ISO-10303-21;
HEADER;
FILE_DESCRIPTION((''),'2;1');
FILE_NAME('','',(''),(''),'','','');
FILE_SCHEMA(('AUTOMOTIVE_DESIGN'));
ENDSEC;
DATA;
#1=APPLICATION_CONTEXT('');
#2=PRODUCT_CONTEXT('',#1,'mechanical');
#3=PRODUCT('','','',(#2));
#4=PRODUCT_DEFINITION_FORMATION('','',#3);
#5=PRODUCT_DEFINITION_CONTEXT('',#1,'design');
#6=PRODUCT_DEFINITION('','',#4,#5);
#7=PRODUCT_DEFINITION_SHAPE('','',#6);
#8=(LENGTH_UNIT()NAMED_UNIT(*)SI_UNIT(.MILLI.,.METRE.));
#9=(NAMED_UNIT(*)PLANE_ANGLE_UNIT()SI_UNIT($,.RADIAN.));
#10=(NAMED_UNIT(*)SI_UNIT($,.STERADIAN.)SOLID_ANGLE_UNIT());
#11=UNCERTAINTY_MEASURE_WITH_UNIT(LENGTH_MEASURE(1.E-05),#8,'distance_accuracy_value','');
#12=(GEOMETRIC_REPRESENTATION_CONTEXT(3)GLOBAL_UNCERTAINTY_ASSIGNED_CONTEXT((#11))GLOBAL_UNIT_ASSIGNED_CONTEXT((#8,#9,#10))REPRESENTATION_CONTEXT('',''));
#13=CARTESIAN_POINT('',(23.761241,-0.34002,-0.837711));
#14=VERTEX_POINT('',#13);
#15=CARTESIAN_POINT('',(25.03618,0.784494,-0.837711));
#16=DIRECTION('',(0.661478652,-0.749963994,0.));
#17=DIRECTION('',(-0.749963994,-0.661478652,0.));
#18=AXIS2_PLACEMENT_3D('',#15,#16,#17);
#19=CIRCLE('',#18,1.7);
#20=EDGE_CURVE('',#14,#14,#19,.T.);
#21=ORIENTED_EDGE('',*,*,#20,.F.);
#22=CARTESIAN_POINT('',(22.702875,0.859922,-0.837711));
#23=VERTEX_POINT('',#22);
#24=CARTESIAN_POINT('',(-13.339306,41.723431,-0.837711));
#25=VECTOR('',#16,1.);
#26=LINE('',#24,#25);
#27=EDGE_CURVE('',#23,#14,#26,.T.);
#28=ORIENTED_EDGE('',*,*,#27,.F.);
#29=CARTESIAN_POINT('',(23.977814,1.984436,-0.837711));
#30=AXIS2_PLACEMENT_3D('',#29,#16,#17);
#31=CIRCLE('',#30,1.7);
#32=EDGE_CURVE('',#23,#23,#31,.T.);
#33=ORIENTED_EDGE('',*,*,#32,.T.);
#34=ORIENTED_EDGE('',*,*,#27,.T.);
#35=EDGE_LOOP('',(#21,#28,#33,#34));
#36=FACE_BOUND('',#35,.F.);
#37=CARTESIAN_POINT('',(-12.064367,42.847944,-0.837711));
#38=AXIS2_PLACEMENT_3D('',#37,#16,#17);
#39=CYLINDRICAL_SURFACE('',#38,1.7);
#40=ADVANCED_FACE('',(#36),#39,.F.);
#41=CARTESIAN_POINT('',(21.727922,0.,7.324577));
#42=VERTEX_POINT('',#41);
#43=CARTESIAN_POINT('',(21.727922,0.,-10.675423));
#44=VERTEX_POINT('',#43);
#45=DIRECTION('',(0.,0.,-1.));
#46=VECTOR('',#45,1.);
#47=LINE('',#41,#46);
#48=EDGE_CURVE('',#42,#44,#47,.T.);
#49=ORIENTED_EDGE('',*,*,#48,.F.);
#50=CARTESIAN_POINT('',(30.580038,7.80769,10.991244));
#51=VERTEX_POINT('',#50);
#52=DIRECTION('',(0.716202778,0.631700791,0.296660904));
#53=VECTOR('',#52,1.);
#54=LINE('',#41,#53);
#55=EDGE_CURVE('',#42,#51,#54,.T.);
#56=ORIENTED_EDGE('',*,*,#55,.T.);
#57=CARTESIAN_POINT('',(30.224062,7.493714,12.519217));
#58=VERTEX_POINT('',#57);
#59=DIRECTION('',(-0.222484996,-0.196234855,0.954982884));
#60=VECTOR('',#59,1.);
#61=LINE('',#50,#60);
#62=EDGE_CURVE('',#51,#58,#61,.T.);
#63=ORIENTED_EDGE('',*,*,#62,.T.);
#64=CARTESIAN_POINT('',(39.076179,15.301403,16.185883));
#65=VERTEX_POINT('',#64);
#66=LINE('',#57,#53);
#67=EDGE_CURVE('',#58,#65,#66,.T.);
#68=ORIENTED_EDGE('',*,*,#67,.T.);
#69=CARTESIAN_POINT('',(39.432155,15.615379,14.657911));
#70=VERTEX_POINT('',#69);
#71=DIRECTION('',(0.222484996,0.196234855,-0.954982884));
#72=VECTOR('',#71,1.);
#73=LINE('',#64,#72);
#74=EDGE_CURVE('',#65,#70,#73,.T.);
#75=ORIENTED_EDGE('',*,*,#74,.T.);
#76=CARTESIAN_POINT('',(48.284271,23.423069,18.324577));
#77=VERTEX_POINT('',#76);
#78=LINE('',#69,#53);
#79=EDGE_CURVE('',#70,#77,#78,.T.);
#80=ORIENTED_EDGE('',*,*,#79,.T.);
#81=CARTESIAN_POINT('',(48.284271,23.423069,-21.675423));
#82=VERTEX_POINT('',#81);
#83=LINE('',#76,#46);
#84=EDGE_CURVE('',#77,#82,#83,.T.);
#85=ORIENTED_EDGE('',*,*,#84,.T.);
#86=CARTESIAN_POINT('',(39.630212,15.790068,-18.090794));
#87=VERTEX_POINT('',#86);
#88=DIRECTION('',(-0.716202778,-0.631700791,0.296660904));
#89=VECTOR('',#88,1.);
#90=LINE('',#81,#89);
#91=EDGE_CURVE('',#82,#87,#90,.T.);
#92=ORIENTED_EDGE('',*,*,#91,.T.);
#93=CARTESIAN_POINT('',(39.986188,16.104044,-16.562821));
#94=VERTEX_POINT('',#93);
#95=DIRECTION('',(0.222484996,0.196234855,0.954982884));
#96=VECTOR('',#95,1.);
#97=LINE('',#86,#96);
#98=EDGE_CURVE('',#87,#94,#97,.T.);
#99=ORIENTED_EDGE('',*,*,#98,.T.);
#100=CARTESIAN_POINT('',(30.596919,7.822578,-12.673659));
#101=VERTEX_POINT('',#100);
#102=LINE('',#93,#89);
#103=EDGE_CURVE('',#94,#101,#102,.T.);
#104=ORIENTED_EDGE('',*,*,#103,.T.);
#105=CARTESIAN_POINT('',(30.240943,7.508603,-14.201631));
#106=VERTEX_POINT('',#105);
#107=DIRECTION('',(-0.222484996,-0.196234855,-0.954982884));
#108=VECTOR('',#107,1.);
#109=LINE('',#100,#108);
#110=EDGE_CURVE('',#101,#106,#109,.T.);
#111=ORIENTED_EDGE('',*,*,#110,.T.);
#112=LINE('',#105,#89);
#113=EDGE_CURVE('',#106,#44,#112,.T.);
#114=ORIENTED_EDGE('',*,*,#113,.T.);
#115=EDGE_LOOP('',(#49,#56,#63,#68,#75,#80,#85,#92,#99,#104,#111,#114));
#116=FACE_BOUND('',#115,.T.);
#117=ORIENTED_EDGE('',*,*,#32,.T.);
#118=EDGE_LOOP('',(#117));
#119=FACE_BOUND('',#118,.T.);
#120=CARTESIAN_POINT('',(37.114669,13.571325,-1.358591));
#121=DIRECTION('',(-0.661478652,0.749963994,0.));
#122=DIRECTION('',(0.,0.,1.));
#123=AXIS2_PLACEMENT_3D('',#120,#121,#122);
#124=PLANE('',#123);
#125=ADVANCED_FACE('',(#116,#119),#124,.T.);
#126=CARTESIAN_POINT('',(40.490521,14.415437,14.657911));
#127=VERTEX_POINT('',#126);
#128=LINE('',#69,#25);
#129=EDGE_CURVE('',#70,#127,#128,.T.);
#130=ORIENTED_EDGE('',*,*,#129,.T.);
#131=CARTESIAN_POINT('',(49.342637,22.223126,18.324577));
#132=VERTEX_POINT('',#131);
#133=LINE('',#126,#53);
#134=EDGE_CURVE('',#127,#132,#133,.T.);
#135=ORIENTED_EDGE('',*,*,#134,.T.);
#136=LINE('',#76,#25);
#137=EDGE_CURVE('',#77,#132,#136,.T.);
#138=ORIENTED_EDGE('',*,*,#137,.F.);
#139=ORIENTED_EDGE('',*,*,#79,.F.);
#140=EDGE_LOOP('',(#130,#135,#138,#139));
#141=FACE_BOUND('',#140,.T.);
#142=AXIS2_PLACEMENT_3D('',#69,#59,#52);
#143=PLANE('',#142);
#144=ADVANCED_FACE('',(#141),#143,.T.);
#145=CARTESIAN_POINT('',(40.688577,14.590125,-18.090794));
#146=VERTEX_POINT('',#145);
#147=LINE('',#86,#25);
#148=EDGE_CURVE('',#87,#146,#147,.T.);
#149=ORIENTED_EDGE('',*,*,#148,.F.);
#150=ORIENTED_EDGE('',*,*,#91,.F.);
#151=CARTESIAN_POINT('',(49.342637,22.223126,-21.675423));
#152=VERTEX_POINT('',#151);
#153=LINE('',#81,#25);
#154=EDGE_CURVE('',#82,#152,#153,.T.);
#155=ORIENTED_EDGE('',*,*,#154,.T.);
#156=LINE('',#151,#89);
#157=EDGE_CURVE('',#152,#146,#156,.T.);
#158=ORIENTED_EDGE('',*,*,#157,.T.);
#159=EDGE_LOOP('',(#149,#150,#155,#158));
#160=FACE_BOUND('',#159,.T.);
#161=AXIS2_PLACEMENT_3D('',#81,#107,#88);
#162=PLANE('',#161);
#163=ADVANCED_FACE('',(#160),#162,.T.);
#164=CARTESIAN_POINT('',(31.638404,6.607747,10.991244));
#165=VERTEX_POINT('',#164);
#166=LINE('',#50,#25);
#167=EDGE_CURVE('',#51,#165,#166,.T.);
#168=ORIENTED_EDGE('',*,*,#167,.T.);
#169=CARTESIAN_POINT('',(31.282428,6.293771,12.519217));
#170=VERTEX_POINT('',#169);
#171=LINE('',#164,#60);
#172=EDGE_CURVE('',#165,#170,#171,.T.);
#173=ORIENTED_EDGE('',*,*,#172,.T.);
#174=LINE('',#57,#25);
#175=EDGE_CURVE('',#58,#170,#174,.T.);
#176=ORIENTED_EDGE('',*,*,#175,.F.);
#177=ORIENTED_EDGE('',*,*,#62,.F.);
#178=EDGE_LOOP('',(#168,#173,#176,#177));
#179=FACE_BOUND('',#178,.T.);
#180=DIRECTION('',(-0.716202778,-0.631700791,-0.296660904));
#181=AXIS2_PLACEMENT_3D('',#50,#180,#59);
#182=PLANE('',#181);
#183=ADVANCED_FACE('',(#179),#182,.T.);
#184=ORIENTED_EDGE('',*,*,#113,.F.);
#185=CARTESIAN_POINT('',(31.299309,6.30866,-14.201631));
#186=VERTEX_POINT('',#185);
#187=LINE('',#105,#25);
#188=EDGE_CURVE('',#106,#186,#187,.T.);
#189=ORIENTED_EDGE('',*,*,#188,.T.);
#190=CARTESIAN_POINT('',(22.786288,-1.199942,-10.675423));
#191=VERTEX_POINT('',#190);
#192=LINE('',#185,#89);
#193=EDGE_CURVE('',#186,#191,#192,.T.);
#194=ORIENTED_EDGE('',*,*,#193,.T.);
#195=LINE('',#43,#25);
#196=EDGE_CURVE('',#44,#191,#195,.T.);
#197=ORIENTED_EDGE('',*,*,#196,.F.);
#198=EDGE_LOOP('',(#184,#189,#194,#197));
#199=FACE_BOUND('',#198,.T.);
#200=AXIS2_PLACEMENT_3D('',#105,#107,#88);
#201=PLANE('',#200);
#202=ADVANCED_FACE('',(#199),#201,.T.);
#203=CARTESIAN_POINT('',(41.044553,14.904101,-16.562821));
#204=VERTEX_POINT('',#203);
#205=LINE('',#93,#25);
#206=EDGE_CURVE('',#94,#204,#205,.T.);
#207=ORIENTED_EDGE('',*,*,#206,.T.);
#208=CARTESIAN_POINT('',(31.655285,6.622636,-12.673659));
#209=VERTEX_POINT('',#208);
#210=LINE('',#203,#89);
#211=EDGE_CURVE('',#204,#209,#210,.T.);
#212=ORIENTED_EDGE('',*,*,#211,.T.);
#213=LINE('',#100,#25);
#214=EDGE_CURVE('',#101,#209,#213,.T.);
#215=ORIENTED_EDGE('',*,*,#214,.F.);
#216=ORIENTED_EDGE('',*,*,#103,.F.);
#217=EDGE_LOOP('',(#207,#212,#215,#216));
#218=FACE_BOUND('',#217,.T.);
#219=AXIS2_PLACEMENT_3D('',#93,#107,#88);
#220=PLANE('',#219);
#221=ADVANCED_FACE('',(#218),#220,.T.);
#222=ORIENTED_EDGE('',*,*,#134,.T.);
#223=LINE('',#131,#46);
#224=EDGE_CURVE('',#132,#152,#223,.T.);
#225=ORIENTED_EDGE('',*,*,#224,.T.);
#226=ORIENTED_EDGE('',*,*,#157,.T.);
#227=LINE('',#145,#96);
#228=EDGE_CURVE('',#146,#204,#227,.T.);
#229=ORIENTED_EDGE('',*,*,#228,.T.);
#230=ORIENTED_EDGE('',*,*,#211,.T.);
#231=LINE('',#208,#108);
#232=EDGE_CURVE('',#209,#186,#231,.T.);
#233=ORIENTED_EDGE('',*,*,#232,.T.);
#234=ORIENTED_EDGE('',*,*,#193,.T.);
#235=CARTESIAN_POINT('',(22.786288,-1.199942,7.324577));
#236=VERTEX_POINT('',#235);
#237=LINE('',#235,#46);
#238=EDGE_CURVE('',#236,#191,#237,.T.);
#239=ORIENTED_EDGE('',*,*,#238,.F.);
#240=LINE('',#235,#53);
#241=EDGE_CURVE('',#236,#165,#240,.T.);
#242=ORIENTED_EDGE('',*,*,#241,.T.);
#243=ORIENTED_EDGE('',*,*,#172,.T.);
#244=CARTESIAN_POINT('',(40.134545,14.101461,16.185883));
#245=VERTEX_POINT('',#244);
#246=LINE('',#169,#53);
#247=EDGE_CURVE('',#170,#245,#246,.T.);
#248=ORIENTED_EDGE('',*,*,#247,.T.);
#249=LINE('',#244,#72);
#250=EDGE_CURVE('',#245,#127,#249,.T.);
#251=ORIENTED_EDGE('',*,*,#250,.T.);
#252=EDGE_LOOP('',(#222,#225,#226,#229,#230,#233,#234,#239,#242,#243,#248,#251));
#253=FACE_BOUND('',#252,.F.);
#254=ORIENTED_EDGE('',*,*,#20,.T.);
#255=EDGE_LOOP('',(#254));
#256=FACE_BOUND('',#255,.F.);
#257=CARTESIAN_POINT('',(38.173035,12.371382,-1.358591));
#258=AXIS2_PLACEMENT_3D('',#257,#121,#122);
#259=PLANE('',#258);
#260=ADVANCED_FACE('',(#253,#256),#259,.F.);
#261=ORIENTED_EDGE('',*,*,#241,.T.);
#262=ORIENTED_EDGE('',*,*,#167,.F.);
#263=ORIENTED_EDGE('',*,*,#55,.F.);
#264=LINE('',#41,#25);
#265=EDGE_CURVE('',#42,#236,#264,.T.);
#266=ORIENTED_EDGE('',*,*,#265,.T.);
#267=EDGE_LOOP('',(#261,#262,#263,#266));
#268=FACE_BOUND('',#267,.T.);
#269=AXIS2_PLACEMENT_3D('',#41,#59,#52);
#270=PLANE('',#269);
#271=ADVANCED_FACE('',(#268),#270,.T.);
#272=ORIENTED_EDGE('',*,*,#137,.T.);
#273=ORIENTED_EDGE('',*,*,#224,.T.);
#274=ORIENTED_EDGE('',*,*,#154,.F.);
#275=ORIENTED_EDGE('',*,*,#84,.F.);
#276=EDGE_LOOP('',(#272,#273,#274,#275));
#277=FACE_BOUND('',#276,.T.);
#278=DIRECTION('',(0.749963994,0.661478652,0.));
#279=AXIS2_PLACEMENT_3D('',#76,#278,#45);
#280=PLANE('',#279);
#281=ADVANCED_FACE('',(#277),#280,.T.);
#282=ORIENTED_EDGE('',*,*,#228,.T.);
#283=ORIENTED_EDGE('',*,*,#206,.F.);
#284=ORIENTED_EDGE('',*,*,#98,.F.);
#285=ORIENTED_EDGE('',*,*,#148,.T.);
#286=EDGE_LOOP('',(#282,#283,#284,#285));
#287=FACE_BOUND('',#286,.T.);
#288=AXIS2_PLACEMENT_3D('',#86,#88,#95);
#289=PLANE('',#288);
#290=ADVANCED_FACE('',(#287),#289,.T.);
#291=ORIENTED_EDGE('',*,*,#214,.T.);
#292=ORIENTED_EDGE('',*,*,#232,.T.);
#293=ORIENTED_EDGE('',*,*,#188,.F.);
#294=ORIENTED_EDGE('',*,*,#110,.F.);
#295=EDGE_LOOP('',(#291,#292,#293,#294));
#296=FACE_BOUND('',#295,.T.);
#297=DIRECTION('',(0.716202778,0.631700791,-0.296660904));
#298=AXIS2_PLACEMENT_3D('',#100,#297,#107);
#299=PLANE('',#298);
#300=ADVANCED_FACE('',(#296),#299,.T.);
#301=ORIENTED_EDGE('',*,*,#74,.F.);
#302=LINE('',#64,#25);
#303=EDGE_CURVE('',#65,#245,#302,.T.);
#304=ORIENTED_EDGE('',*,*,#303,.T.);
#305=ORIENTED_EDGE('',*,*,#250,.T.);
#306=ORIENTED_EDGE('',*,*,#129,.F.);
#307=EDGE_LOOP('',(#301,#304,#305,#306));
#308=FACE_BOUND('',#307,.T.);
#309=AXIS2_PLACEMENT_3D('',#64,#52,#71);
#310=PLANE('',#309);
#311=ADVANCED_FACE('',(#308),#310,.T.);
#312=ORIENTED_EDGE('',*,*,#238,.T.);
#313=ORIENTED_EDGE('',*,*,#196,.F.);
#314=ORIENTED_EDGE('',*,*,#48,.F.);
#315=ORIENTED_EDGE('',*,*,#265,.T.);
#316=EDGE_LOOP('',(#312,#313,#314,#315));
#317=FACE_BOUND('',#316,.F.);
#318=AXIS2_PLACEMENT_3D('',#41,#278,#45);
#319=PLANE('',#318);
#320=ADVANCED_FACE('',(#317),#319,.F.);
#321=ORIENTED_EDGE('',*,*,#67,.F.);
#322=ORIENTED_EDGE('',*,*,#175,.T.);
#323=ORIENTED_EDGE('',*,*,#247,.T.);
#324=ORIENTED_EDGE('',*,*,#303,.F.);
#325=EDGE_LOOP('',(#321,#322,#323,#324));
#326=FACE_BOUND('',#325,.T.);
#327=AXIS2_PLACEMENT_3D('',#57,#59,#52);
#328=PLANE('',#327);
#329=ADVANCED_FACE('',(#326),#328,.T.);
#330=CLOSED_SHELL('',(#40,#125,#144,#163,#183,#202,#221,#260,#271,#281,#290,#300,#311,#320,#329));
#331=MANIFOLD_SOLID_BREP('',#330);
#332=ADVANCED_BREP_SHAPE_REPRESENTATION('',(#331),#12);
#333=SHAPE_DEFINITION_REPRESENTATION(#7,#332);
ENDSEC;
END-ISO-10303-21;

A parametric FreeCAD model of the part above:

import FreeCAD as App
import Part
import Sketcher
Q = App.Units.Quantity

doc = App.newDocument("Part")
body = doc.addObject("PartDesign::Body", "Body")

sketch1 = body.newObject("Sketcher::SketchObject", "Sketch")
sketch1.Placement = App.Placement(App.Vector(9.507139, -10.7789, 0), App.Rotation(App.Vector(0, 0, -1), App.Vector(0.749963994, 0.661478652, 0), App.Vector(0.661478652, -0.749963994, 0), "ZXY"))
sketch1.addGeometry([
    Part.LineSegment(App.Vector(21.675423, 51.705325, 0), App.Vector(-18.324577, 51.705325, 0)),
    Part.LineSegment(App.Vector(-18.324577, 51.705325, 0), App.Vector(-14.657911, 39.901936, 0)),
    Part.LineSegment(App.Vector(-14.657911, 39.901936, 0), App.Vector(-16.185883, 39.427279, 0)),
    Part.LineSegment(App.Vector(-16.185883, 39.427279, 0), App.Vector(-12.519217, 27.62389, 0)),
    Part.LineSegment(App.Vector(-12.519217, 27.62389, 0), App.Vector(-10.991244, 28.098548, 0)),
    Part.LineSegment(App.Vector(-10.991244, 28.098548, 0), App.Vector(-7.324577, 16.295159, 0)),
    Part.LineSegment(App.Vector(-7.324577, 16.295159, 0), App.Vector(10.675423, 16.295159, 0)),
    Part.LineSegment(App.Vector(10.675423, 16.295159, 0), App.Vector(14.201631, 27.646399, 0)),
    Part.LineSegment(App.Vector(14.201631, 27.646399, 0), App.Vector(12.673659, 28.121056, 0)),
    Part.LineSegment(App.Vector(12.673659, 28.121056, 0), App.Vector(16.562821, 40.640682, 0)),
    Part.LineSegment(App.Vector(16.562821, 40.640682, 0), App.Vector(18.090794, 40.166024, 0)),
    Part.LineSegment(App.Vector(18.090794, 40.166024, 0), App.Vector(21.675423, 51.705325, 0)),
], False)
sketch1.addConstraint([
    Sketcher.Constraint("Coincident", 0, 2, 1, 1),
    Sketcher.Constraint("Coincident", 1, 2, 2, 1),
    Sketcher.Constraint("Coincident", 2, 2, 3, 1),
    Sketcher.Constraint("Coincident", 3, 2, 4, 1),
    Sketcher.Constraint("Coincident", 4, 2, 5, 1),
    Sketcher.Constraint("Coincident", 5, 2, 6, 1),
    Sketcher.Constraint("Coincident", 6, 2, 7, 1),
    Sketcher.Constraint("Coincident", 7, 2, 8, 1),
    Sketcher.Constraint("Coincident", 8, 2, 9, 1),
    Sketcher.Constraint("Coincident", 9, 2, 10, 1),
    Sketcher.Constraint("Coincident", 10, 2, 11, 1),
    Sketcher.Constraint("Coincident", 11, 2, 0, 1),
    Sketcher.Constraint("Horizontal", 0),
    Sketcher.Constraint("Horizontal", 6),
    Sketcher.Constraint("Perpendicular", 1, 2),
    Sketcher.Constraint("Perpendicular", 2, 3),
    Sketcher.Constraint("Perpendicular", 3, 4),
    Sketcher.Constraint("Perpendicular", 4, 5),
    Sketcher.Constraint("Perpendicular", 7, 8),
    Sketcher.Constraint("Perpendicular", 8, 9),
    Sketcher.Constraint("Perpendicular", 9, 10),
    Sketcher.Constraint("Perpendicular", 10, 11),
    Sketcher.Constraint("Equal", 1, 3),
    Sketcher.Constraint("Equal", 2, 4),
    Sketcher.Constraint("Equal", 3, 5),
    Sketcher.Constraint("Equal", 4, 8),
    Sketcher.Constraint("Equal", 8, 10),
    Sketcher.Constraint("DistanceX", 0, 2, 0, 1, Q("40 mm")),
    Sketcher.Constraint("DistanceX", 6, 1, 6, 2, Q("18 mm")),
    Sketcher.Constraint("DistanceX", 0, 2, 5, 2, Q("11 mm")),
    Sketcher.Constraint("Distance", 2, Q("1.6 mm")),
    Sketcher.Constraint("DistanceY", -1, 1, 7, 2, Q("27.646399 mm")),
    Sketcher.Constraint("DistanceX", 6, 2, 9, 2, Q("5.887398 mm")),
    Sketcher.Constraint("DistanceY", 10, 2, 11, 2, Q("11.5393 mm")),
    Sketcher.Constraint("Distance", 9, Q("13.109791 mm")),
    Sketcher.Constraint("DistanceX", 1, 2, -1, 1, Q("14.657911 mm")),
])
pad1 = body.newObject("PartDesign::Pad", "Pad")
pad1.Profile = sketch1
pad1.Length = 1.6

sketch2 = body.newObject("Sketcher::SketchObject", "Sketch001")
sketch2.Placement = App.Placement(App.Vector(9.507139, -10.7789, 0), App.Rotation(App.Vector(0.749963994, 0.661478652, 0), App.Vector(0, 0, -0.999999999), App.Vector(-0.661478652, 0.749963994, 0), "ZXY"))
sketch2.addGeometry(Part.Circle(App.Vector(19.295159, 0.837711, 0), App.Vector(0, 0, 1), 1.7), False)
sketch2.addConstraint([
    Sketcher.Constraint("Diameter", 0, Q("3.4 mm")),
    Sketcher.Constraint("DistanceX", -1, 1, 0, 3, Q("19.295159 mm")),
    Sketcher.Constraint("DistanceY", -1, 1, 0, 3, Q("0.837711 mm")),
])
doc.recompute()
hole = body.newObject("PartDesign::Hole", "Hole")
hole.Profile = sketch2
hole.ThreadType = "None"
hole.Diameter = 3.4
hole.DepthType = "ThroughAll"

doc.recompute()
